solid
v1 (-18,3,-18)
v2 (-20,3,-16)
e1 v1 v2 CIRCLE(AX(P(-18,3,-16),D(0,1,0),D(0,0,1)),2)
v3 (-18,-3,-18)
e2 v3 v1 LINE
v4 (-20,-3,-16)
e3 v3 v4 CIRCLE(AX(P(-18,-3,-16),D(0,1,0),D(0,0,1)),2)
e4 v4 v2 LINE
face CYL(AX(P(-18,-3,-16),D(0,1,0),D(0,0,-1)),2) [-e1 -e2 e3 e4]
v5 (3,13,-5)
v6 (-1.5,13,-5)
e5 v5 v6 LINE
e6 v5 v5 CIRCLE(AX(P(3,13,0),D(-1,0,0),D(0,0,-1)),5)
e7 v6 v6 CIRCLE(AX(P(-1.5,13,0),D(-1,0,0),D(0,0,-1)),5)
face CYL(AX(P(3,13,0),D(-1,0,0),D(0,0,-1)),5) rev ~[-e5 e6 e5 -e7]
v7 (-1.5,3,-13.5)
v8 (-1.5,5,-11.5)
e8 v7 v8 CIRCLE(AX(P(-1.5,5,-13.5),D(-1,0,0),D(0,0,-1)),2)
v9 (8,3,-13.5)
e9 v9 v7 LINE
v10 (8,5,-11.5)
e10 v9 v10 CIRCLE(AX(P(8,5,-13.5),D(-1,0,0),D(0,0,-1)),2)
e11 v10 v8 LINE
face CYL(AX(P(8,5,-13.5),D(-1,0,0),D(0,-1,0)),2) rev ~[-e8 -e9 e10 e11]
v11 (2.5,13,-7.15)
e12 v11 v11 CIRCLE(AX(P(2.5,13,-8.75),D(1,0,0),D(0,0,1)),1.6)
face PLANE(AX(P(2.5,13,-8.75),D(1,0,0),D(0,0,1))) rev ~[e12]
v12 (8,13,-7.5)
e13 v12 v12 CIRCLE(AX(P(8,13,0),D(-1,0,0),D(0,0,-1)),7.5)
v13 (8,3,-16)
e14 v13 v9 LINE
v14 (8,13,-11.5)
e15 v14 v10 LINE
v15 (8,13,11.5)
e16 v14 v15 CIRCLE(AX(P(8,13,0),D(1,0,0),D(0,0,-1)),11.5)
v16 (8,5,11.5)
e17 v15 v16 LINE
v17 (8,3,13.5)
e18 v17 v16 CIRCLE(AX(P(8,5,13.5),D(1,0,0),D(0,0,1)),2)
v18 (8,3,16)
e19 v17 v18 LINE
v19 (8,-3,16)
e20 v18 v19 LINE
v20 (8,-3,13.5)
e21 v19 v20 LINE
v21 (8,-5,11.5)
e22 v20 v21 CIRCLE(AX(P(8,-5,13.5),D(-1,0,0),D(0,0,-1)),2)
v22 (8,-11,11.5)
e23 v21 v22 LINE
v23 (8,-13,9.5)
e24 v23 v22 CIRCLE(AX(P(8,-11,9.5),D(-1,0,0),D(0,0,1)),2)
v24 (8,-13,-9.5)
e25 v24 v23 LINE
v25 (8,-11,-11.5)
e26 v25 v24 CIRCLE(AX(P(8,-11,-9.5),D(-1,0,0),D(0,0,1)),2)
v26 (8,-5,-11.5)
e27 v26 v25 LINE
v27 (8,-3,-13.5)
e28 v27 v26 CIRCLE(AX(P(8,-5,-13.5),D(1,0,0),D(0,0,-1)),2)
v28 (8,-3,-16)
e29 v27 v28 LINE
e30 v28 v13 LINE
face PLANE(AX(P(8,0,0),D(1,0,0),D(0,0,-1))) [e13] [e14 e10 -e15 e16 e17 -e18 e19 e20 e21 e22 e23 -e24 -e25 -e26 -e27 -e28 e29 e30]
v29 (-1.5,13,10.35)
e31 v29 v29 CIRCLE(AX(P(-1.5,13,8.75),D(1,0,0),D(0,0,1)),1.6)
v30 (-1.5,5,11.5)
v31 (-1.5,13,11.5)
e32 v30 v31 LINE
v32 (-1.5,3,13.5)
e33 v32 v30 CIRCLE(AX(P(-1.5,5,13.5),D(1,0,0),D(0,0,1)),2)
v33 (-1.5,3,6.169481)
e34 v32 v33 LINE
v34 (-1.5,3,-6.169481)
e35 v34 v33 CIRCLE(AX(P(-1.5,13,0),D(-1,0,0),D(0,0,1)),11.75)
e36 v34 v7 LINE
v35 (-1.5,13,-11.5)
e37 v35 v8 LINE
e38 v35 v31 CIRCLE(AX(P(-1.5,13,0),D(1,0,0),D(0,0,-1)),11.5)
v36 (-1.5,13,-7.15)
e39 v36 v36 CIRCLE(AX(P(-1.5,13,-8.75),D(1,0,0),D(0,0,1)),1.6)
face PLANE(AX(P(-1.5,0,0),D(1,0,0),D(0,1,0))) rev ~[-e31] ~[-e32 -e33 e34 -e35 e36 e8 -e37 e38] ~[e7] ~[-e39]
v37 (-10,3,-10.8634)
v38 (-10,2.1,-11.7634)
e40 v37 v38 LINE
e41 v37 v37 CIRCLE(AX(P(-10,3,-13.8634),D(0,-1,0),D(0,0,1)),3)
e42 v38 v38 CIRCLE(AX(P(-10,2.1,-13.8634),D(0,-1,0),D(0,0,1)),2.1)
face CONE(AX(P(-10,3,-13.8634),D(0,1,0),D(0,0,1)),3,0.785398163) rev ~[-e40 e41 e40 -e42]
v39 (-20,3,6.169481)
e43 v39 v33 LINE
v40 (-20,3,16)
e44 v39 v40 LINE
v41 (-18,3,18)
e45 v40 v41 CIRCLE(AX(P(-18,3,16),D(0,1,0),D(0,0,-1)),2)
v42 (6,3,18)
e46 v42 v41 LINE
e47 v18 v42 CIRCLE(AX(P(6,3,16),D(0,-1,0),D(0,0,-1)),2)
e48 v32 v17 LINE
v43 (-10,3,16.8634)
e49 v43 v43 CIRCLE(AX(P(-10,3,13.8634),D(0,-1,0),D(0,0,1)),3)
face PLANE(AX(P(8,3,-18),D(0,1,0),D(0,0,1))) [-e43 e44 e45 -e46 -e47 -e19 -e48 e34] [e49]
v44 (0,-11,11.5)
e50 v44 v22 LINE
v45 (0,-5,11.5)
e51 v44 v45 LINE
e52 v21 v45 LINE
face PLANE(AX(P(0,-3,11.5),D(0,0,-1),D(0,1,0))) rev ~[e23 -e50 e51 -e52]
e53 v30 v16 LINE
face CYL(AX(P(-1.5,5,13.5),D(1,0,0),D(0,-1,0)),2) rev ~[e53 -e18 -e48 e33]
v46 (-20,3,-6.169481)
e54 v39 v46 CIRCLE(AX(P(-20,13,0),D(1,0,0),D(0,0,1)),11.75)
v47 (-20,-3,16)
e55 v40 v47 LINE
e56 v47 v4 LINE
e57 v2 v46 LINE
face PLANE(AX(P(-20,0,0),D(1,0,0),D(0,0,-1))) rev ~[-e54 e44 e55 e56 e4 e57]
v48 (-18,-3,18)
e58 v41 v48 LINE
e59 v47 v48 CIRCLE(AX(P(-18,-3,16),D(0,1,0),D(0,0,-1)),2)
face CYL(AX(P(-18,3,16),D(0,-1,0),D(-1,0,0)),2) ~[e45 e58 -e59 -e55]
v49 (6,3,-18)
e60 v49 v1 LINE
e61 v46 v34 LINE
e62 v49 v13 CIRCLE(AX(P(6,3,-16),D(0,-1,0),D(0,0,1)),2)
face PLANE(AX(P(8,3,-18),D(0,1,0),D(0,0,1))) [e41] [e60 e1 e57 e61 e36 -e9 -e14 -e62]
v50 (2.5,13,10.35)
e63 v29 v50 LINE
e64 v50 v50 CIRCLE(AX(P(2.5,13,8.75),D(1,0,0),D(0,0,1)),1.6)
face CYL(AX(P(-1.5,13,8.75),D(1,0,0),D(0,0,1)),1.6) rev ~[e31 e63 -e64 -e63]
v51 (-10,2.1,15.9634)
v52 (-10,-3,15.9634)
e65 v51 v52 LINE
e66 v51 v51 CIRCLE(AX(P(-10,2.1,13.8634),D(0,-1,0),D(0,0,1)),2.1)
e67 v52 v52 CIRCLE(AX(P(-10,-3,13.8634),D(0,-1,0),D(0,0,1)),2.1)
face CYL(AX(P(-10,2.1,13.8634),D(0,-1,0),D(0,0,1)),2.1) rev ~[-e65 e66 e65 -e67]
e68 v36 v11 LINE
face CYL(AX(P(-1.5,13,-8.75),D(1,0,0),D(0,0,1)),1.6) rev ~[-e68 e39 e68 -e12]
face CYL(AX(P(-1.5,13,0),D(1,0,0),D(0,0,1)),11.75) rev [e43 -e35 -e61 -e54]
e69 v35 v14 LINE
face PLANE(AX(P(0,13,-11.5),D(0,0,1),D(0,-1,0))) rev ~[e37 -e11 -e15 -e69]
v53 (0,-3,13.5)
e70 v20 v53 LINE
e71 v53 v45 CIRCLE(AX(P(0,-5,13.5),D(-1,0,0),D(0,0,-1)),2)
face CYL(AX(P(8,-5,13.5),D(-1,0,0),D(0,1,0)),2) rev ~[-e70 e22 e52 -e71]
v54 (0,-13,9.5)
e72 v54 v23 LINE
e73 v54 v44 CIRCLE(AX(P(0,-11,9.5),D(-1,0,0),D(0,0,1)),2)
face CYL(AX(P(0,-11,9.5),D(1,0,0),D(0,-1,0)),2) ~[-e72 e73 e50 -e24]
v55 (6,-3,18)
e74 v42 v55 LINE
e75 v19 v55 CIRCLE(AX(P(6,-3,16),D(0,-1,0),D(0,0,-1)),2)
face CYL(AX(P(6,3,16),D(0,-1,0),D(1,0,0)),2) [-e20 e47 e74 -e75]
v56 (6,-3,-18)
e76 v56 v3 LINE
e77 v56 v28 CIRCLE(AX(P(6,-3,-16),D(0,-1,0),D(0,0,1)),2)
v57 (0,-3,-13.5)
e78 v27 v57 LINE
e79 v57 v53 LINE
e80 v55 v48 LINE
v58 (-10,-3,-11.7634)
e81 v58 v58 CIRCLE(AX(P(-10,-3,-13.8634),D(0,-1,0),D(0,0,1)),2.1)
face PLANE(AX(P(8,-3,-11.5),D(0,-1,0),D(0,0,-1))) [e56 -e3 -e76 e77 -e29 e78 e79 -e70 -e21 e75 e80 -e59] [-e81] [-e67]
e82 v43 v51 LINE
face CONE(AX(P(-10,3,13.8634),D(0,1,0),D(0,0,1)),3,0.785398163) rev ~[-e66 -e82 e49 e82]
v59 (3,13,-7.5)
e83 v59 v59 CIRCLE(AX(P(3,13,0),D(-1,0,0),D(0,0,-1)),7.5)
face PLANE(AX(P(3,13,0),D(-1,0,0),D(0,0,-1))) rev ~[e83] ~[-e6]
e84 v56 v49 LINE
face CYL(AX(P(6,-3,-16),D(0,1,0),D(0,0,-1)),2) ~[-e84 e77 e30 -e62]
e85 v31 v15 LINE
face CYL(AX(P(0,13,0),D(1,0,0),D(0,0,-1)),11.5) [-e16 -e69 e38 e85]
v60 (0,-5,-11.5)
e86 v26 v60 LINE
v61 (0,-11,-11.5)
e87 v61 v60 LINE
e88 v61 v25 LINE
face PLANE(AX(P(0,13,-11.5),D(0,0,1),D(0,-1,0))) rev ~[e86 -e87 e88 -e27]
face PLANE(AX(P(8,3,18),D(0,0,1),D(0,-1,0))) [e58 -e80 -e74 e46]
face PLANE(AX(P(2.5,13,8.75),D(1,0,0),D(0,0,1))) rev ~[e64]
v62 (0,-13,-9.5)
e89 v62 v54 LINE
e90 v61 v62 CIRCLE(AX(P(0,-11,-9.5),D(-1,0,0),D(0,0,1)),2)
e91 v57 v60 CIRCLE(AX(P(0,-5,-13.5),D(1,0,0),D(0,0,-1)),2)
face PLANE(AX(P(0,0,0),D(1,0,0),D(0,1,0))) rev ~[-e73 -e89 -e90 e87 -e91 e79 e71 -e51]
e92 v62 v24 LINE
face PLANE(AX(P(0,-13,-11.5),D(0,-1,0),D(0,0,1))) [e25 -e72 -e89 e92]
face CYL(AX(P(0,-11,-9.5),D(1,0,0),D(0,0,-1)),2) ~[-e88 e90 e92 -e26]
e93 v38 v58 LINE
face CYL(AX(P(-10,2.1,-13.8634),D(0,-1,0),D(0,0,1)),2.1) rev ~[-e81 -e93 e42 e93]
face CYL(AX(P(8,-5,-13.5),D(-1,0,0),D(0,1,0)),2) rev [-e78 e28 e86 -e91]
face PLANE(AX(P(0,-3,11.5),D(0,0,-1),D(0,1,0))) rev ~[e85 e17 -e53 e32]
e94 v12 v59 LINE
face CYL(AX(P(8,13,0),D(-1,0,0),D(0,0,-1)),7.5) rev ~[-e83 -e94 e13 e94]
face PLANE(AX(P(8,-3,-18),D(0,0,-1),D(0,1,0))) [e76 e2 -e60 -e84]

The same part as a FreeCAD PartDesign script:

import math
import FreeCAD as App
import Part
import Sketcher


def edges_at(feature, points):
    """Names of the edges that pass closest to the given points."""
    edges = feature.Shape.Edges
    near = lambda p: min(range(len(edges)), key=lambda i: edges[i].distToShape(Part.Vertex(*p))[0])
    return sorted({f"Edge{near(p) + 1}" for p in points})

doc = App.newDocument("Part")
body = doc.addObject("PartDesign::Body", "Body")

sketch1 = body.newObject("Sketcher::SketchObject", "Sketch")
sketch1.AttachmentSupport = (doc.getObject("YZ_Plane"), [""])
sketch1.MapMode = "FlatFace"
sketch1.addGeometry(Part.ArcOfCircle(Part.Circle(App.Vector(13, 0, 0), App.Vector(0, 0, 1), 12), math.radians(-90), math.radians(90)), False)
sketch1.addGeometry(Part.LineSegment(App.Vector(13, 12, 0), App.Vector(-13, 12, 0)), False)
sketch1.addGeometry(Part.LineSegment(App.Vector(-13, 12, 0), App.Vector(-13, -12, 0)), False)
sketch1.addGeometry(Part.LineSegment(App.Vector(-13, -12, 0), App.Vector(13, -12, 0)), False)
sketch1.addConstraint(Sketcher.Constraint("Tangent", 0, 2, 1, 1))
sketch1.addConstraint(Sketcher.Constraint("Coincident", 1, 2, 2, 1))
sketch1.addConstraint(Sketcher.Constraint("Coincident", 2, 2, 3, 1))
sketch1.addConstraint(Sketcher.Constraint("Tangent", 3, 2, 0, 1))
sketch1.addConstraint(Sketcher.Constraint("Horizontal", 1))
sketch1.addConstraint(Sketcher.Constraint("Vertical", 2))
sketch1.addConstraint(Sketcher.Constraint("Horizontal", 3))
sketch1.addConstraint(Sketcher.Constraint("Symmetric", 0, 2, 2, 2, -1, 1))
sketch1.addConstraint(Sketcher.Constraint("Radius", 0, 11.5))
sketch1.addConstraint(Sketcher.Constraint("DistanceX", 1, 2, 1, 1, 26.0))
pad1 = body.newObject("PartDesign::Pad", "Pad")
pad1.Profile = sketch1
pad1.Length = 8

sketch2 = body.newObject("Sketcher::SketchObject", "Sketch001")
sketch2.AttachmentSupport = (doc.getObject("YZ_Plane"), [""])
sketch2.MapMode = "FlatFace"
sketch2.addGeometry(Part.LineSegment(App.Vector(-3, -12, 0), App.Vector(13, -12, 0)), False)
sketch2.addGeometry(Part.ArcOfCircle(Part.Circle(App.Vector(13, 0, 0), App.Vector(0, 0, 1), 12), math.radians(-90), math.radians(90)), False)
sketch2.addGeometry(Part.LineSegment(App.Vector(13, 12, 0), App.Vector(-3, 12, 0)), False)
sketch2.addGeometry(Part.LineSegment(App.Vector(-3, 12, 0), App.Vector(-3, -12, 0)), False)
sketch2.addConstraint(Sketcher.Constraint("Tangent", 0, 2, 1, 1))
sketch2.addConstraint(Sketcher.Constraint("Tangent", 1, 2, 2, 1))
sketch2.addConstraint(Sketcher.Constraint("Coincident", 2, 2, 3, 1))
sketch2.addConstraint(Sketcher.Constraint("Coincident", 3, 2, 0, 1))
sketch2.addConstraint(Sketcher.Constraint("Horizontal", 0))
sketch2.addConstraint(Sketcher.Constraint("Horizontal", 2))
sketch2.addConstraint(Sketcher.Constraint("Vertical", 3))
sketch2.addConstraint(Sketcher.Constraint("PointOnObject", 1, 3, -1))
sketch2.addConstraint(Sketcher.Constraint("Radius", 1, 11.5))
sketch2.addConstraint(Sketcher.Constraint("DistanceX", 0, 1, 0, 2, 16.0))
sketch2.addConstraint(Sketcher.Constraint("DistanceX", -1, 1, 1, 3, 13.0))
pad2 = body.newObject("PartDesign::Pad", "Pad001")
pad2.Profile = sketch2
pad2.Length = 1.5
pad2.Reversed = True

sketch3 = body.newObject("Sketcher::SketchObject", "Sketch002")
sketch3.AttachmentSupport = (doc.getObject("YZ_Plane"), [""])
sketch3.MapMode = "FlatFace"
sketch3.AttachmentOffset = App.Placement(App.Vector(0, 0, 8), App.Rotation())
sketch3.addGeometry(Part.Circle(App.Vector(13, 0, 0), App.Vector(0, 0, 1), 5), False)
sketch3.addConstraint(Sketcher.Constraint("PointOnObject", 0, 3, -1))
sketch3.addConstraint(Sketcher.Constraint("Diameter", 0, 10.0))
sketch3.addConstraint(Sketcher.Constraint("DistanceX", -1, 1, 0, 3, 13.0))
doc.recompute()
hole = body.newObject("PartDesign::Hole", "Hole")
hole.Profile = sketch3
hole.ThreadType = "None"
hole.Diameter = 10
hole.DepthType = "ThroughAll"
hole.HoleCutType = "Counterbore"
hole.HoleCutDiameter = 15
hole.HoleCutDepth = 5

sketch4 = body.newObject("Sketcher::SketchObject", "Sketch003")
sketch4.AttachmentSupport = (doc.getObject("YZ_Plane"), [""])
sketch4.MapMode = "FlatFace"
sketch4.AttachmentOffset = App.Placement(App.Vector(0, 0, -1.5), App.Rotation())
sketch4.addGeometry(Part.Circle(App.Vector(13, -8.8, 0), App.Vector(0, 0, 1), 1.6), False)
sketch4.addGeometry(Part.Circle(App.Vector(13, 8.8, 0), App.Vector(0, 0, 1), 1.6), False)
sketch4.addConstraint(Sketcher.Constraint("Equal", 0, 1))
sketch4.addConstraint(Sketcher.Constraint("Symmetric", 0, 3, 1, 3, -1))
sketch4.addConstraint(Sketcher.Constraint("Diameter", 0, 3.2))
sketch4.addConstraint(Sketcher.Constraint("DistanceX", -1, 1, 0, 3, 13.0))
sketch4.addConstraint(Sketcher.Constraint("DistanceY", 0, 3, 1, 3, 17.5))
doc.recompute()
hole2 = body.newObject("PartDesign::Hole", "Hole001")
hole2.Profile = sketch4
hole2.ThreadType = "None"
hole2.Diameter = 3.2
hole2.DepthType = "Dimension"
hole2.Depth = 4
hole2.DrillPoint = "Flat"
hole2.Reversed = True

sketch5 = body.newObject("Sketcher::SketchObject", "Sketch004")
sketch5.AttachmentSupport = (doc.getObject("YZ_Plane"), [""])
sketch5.MapMode = "FlatFace"
sketch5.AttachmentOffset = App.Placement(App.Vector(0, 0, 8), App.Rotation())
sketch5.addGeometry(Part.LineSegment(App.Vector(-3, -18, 0), App.Vector(3, -18, 0)), False)
sketch5.addGeometry(Part.LineSegment(App.Vector(3, -18, 0), App.Vector(3, 18, 0)), False)
sketch5.addGeometry(Part.LineSegment(App.Vector(3, 18, 0), App.Vector(-3, 18, 0)), False)
sketch5.addGeometry(Part.LineSegment(App.Vector(-3, 18, 0), App.Vector(-3, -18, 0)), False)
sketch5.addConstraint(Sketcher.Constraint("Coincident", 0, 2, 1, 1))
sketch5.addConstraint(Sketcher.Constraint("Coincident", 1, 2, 2, 1))
sketch5.addConstraint(Sketcher.Constraint("Coincident", 2, 2, 3, 1))
sketch5.addConstraint(Sketcher.Constraint("Coincident", 3, 2, 0, 1))
sketch5.addConstraint(Sketcher.Constraint("Horizontal", 0))
sketch5.addConstraint(Sketcher.Constraint("Vertical", 1))
sketch5.addConstraint(Sketcher.Constraint("Horizontal", 2))
sketch5.addConstraint(Sketcher.Constraint("Vertical", 3))
sketch5.addConstraint(Sketcher.Constraint("Symmetric", 0, 2, 2, 2, -1, 1))
sketch5.addConstraint(Sketcher.Constraint("DistanceX", 0, 1, 0, 2, 6.0))
sketch5.addConstraint(Sketcher.Constraint("DistanceY", 1, 1, 1, 2, 36.0))
pad3 = body.newObject("PartDesign::Pad", "Pad002")
pad3.Profile = sketch5
pad3.Length = 28
pad3.Reversed = True
doc.recompute()

fillet = body.newObject("PartDesign::Fillet", "Fillet")
fillet.Base = (pad3, edges_at(pad3, [
    (8, 0, 18),
    (-20, 0, 18),
    (3.25, 3, 11.5),
    (4, -3, 11.5),
    (4, -3, -11.5),
    (8, 0, -18),
    (3.25, 3, -11.5),
    (-20, 0, -18),
    (4, -13, -11.5),
    (4, -13, 11.5),
]))
fillet.Radius = 2

sketch6 = body.newObject("Sketcher::SketchObject", "Sketch005")
sketch6.AttachmentSupport = (doc.getObject("XZ_Plane"), [""])
sketch6.MapMode = "FlatFace"
sketch6.AttachmentOffset = App.Placement(App.Vector(0, 0, -3), App.Rotation())
sketch6.addGeometry(Part.Circle(App.Vector(-10, -13.9, 0), App.Vector(0, 0, 1), 2.1), False)
sketch6.addGeometry(Part.Circle(App.Vector(-10, 13.9, 0), App.Vector(0, 0, 1), 2.1), False)
sketch6.addConstraint(Sketcher.Constraint("Equal", 0, 1))
sketch6.addConstraint(Sketcher.Constraint("Symmetric", 0, 3, 1, 3, -1))
sketch6.addConstraint(Sketcher.Constraint("Diameter", 0, 4.2))
sketch6.addConstraint(Sketcher.Constraint("DistanceX", 0, 3, -1, 1, 10.0))
sketch6.addConstraint(Sketcher.Constraint("DistanceY", 0, 3, -1, 1, 13.8634))
doc.recompute()
hole3 = body.newObject("PartDesign::Hole", "Hole002")
hole3.Profile = sketch6
hole3.ThreadType = "None"
hole3.Diameter = 4.2
hole3.DepthType = "ThroughAll"
hole3.HoleCutType = "Countersink"
hole3.HoleCutDiameter = 6
hole3.HoleCutCountersinkAngle = 90
hole3.Reversed = True

sketch7 = body.newObject("Sketcher::SketchObject", "Sketch006")
sketch7.AttachmentSupport = (doc.getObject("YZ_Plane"), [""])
sketch7.MapMode = "FlatFace"
sketch7.AttachmentOffset = App.Placement(App.Vector(0, 0, -1.5), App.Rotation())
sketch7.addGeometry(Part.Circle(App.Vector(13, 0, 0), App.Vector(0, 0, 1), 12), False)
sketch7.addConstraint(Sketcher.Constraint("PointOnObject", 0, 3, -1))
sketch7.addConstraint(Sketcher.Constraint("Diameter", 0, 23.5))
sketch7.addConstraint(Sketcher.Constraint("DistanceX", -1, 1, 0, 3, 13.0))
pocket1 = body.newObject("PartDesign::Pocket", "Pocket")
pocket1.Profile = sketch7
pocket1.Type = "ThroughAll"

doc.recompute()
